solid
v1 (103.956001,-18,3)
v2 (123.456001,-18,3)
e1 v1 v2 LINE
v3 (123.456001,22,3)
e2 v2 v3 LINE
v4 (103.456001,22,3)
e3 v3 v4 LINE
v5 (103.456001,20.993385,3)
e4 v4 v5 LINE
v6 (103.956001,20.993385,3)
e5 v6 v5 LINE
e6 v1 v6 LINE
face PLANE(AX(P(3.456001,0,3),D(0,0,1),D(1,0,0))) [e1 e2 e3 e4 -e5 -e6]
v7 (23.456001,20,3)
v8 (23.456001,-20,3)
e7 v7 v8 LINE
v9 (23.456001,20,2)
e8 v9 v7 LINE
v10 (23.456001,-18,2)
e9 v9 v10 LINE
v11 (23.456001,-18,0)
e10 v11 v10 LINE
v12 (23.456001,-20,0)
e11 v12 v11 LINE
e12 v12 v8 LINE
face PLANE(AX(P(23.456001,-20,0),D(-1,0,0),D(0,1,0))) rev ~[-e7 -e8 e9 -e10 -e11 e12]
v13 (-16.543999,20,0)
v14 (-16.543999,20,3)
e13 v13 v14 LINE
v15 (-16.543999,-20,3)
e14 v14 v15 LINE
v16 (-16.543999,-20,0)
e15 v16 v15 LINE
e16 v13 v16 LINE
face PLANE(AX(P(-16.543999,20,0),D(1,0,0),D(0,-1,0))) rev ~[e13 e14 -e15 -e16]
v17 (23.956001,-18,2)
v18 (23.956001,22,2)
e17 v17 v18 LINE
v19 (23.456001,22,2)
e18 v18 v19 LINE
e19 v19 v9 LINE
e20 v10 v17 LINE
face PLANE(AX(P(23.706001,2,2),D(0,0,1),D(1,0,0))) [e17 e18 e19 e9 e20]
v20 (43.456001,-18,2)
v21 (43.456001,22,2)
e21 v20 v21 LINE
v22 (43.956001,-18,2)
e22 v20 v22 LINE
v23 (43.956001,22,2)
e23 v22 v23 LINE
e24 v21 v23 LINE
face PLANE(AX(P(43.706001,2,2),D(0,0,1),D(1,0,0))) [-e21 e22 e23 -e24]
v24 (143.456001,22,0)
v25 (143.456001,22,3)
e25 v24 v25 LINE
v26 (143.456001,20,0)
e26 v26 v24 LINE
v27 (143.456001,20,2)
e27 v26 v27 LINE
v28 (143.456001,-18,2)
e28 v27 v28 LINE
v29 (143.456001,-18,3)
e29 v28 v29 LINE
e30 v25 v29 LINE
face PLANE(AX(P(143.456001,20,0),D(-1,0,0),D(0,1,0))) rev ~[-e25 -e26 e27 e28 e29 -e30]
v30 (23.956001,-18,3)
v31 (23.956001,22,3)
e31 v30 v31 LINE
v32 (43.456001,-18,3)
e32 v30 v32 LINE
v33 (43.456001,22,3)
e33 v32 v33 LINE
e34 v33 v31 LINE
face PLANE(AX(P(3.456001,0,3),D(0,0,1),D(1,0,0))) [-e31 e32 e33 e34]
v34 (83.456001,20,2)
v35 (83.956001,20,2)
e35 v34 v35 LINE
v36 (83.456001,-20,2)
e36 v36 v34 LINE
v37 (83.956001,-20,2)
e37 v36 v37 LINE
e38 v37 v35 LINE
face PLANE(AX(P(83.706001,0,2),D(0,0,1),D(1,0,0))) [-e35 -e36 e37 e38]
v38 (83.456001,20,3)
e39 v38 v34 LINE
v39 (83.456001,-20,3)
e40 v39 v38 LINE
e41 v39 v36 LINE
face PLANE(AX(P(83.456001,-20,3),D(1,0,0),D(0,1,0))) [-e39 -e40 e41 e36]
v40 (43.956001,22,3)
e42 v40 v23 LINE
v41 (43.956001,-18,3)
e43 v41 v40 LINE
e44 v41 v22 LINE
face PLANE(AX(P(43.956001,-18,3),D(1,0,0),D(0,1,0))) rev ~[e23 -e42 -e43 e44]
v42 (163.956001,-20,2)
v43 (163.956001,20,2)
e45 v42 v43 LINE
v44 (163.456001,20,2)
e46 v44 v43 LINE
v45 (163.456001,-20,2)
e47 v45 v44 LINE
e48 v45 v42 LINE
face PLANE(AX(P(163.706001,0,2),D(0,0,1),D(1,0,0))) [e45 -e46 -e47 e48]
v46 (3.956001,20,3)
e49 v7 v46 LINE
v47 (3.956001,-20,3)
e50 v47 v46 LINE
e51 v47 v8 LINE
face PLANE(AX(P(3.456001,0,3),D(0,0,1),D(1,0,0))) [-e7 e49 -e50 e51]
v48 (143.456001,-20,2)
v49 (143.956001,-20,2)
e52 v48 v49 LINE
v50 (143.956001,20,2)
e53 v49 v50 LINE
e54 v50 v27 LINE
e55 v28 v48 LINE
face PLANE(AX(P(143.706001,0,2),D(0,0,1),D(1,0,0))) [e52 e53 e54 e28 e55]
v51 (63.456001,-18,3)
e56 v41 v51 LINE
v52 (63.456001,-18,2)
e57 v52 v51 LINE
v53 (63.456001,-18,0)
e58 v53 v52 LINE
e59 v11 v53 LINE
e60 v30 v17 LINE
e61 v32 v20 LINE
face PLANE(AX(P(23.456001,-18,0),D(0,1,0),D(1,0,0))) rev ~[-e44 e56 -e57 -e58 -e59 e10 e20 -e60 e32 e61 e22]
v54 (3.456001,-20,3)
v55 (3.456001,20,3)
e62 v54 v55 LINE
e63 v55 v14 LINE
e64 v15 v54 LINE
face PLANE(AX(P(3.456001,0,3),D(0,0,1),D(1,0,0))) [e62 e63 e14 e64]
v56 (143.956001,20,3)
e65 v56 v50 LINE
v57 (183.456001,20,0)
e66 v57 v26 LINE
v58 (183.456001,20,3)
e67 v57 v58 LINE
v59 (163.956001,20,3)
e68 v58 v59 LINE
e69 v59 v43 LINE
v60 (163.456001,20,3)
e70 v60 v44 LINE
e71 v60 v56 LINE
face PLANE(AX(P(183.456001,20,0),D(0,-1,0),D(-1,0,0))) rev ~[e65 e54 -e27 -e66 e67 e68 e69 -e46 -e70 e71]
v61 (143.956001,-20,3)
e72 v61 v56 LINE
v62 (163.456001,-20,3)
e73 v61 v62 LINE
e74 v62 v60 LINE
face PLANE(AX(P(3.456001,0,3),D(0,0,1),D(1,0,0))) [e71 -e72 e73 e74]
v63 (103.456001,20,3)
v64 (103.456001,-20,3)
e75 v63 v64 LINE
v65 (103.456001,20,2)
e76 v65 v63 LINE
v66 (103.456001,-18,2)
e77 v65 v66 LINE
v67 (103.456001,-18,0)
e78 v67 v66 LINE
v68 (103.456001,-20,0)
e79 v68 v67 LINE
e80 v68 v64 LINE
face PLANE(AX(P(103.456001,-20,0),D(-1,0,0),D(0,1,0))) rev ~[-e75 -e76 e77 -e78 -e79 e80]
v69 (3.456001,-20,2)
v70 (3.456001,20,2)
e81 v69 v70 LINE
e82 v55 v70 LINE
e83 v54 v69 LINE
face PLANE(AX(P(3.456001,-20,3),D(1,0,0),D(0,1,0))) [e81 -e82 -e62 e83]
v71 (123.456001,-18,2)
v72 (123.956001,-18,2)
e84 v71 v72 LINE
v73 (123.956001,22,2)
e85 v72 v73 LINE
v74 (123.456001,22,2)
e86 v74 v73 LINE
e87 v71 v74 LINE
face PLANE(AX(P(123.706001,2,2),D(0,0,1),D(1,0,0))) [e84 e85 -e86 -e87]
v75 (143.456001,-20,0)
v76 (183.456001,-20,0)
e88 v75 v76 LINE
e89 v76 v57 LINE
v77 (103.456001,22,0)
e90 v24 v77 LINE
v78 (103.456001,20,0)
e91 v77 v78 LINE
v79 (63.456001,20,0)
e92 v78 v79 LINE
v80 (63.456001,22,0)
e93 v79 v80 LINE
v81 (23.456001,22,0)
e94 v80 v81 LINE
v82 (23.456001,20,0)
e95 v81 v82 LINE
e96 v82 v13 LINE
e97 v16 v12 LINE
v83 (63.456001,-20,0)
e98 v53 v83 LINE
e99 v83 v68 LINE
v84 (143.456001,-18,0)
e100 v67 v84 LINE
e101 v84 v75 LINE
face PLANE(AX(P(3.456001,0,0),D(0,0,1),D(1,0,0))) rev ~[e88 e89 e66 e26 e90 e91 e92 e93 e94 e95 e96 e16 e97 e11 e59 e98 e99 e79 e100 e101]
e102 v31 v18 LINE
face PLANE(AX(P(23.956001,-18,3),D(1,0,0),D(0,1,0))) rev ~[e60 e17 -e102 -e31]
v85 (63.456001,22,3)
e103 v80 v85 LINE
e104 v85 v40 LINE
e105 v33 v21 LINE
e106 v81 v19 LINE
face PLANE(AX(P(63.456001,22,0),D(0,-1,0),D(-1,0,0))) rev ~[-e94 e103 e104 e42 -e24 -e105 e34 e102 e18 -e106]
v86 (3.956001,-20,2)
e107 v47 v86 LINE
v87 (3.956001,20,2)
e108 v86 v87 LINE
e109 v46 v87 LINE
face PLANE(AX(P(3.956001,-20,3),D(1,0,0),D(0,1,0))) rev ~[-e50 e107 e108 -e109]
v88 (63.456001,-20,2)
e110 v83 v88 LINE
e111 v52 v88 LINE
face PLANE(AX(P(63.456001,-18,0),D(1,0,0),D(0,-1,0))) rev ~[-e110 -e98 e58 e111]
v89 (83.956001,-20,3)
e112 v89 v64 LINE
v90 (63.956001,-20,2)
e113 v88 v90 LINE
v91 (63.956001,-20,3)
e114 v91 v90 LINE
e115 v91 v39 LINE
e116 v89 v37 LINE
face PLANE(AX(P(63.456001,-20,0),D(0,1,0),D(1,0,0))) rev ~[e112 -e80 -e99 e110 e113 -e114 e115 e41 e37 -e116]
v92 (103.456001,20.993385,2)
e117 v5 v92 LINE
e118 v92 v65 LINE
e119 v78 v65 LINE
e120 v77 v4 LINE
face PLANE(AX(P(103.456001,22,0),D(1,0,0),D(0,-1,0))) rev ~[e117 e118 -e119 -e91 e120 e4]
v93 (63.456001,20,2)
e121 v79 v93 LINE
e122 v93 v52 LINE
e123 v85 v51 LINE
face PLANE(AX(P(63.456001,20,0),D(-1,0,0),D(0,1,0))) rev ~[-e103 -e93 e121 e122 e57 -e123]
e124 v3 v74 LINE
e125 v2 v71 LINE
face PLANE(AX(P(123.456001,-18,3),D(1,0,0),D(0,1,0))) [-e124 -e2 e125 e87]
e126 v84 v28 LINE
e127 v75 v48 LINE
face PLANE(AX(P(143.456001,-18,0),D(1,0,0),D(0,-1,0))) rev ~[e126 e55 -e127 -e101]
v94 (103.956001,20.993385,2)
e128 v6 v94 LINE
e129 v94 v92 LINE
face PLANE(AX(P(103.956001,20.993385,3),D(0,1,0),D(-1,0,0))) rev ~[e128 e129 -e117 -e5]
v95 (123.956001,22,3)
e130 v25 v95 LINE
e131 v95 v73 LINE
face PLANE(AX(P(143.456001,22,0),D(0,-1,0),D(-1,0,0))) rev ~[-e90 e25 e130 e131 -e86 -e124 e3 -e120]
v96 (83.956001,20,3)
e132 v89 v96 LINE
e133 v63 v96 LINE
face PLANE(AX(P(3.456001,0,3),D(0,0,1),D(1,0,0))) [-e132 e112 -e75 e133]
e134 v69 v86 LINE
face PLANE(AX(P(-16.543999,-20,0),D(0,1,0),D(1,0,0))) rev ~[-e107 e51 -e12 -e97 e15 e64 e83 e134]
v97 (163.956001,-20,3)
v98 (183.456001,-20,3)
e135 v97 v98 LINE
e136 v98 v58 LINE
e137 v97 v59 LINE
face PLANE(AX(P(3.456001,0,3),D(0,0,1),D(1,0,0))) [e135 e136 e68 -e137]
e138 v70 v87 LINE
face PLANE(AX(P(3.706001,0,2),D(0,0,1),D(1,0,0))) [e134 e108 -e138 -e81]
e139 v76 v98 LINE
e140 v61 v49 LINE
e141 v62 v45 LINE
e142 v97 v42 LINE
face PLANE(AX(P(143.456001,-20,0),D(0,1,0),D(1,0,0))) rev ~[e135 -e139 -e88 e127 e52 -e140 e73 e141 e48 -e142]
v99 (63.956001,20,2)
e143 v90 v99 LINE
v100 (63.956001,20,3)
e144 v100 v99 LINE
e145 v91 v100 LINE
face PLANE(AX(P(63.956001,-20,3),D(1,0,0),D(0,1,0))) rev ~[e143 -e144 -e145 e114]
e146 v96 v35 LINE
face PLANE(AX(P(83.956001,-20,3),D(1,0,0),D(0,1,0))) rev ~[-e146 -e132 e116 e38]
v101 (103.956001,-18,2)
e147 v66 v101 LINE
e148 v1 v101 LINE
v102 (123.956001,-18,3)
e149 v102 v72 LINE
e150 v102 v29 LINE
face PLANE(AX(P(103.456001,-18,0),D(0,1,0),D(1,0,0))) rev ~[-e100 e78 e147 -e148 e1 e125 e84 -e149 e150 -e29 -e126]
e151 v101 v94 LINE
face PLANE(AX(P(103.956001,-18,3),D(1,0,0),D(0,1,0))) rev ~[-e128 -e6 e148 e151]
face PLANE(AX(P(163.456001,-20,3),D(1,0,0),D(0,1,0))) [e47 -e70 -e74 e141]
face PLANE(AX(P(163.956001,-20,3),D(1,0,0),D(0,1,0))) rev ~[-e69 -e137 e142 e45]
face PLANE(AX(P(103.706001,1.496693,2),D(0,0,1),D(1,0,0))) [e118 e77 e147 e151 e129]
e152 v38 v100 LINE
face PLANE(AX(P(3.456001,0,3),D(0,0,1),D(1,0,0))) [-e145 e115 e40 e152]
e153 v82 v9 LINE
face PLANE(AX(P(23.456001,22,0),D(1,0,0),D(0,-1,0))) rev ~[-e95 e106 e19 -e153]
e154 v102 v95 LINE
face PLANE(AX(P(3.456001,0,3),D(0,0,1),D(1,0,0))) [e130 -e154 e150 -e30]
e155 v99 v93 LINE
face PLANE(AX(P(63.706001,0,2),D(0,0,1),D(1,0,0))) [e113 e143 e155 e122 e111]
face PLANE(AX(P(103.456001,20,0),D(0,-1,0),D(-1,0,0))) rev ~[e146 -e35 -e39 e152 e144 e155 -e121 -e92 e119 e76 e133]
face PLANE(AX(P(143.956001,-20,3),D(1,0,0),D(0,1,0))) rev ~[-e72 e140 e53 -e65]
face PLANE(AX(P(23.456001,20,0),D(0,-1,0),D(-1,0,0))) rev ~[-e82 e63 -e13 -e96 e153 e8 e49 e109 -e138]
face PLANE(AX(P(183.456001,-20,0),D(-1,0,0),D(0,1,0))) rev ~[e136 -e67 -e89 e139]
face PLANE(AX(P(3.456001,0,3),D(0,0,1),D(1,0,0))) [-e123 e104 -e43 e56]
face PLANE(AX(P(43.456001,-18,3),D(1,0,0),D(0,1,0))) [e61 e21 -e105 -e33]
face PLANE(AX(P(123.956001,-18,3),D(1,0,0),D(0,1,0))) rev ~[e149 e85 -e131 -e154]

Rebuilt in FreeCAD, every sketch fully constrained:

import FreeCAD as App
import Part
import Sketcher
from FreeCAD import Vector
Q = App.Units.Quantity


def add_polygon(sketch, points):
    """Adds a closed chain of lines whose ends are joined by coincident constraints."""
    first, n = sketch.GeometryCount, len(points)
    for a, b in zip(points, points[1:] + points[:1]):
        sketch.addGeometry(Part.LineSegment(App.Vector(*a, 0), App.Vector(*b, 0)), False)
    for i in range(n):
        sketch.addConstraint(Sketcher.Constraint("Coincident", first + i, 2, first + (i + 1) % n, 1))

doc = App.newDocument("Part")
body = doc.addObject("PartDesign::Body", "Body")

sketch1 = doc.addObject("Sketcher::SketchObject", "Sketch")
body.addObject(sketch1)
sketch1.AttachmentSupport = (doc.XY_Plane, [""])
sketch1.MapMode = "FlatFace"
add_polygon(sketch1, [(-16.543999, -20), (23.456001, -20), (23.456001, -18), (63.456001, -18), (63.456001, -20), (103.456001, -20), (103.456001, -18), (143.456001, -18), (143.456001, -20), (183.456001, -20), (183.456001, 20), (143.456001, 20), (143.456001, 22), (103.456001, 22), (103.456001, 20), (63.456001, 20), (63.456001, 22), (23.456001, 22), (23.456001, 20), (-16.543999, 20)])
sketch1.addConstraint(Sketcher.Constraint("Horizontal", 0))
sketch1.addConstraint(Sketcher.Constraint("Vertical", 1))
sketch1.addConstraint(Sketcher.Constraint("Horizontal", 2))
sketch1.addConstraint(Sketcher.Constraint("Vertical", 3))
sketch1.addConstraint(Sketcher.Constraint("Horizontal", 4))
sketch1.addConstraint(Sketcher.Constraint("Vertical", 5))
sketch1.addConstraint(Sketcher.Constraint("Horizontal", 6))
sketch1.addConstraint(Sketcher.Constraint("Vertical", 7))
sketch1.addConstraint(Sketcher.Constraint("Horizontal", 8))
sketch1.addConstraint(Sketcher.Constraint("Vertical", 9))
sketch1.addConstraint(Sketcher.Constraint("Horizontal", 10))
sketch1.addConstraint(Sketcher.Constraint("Vertical", 11))
sketch1.addConstraint(Sketcher.Constraint("Horizontal", 12))
sketch1.addConstraint(Sketcher.Constraint("Vertical", 13))
sketch1.addConstraint(Sketcher.Constraint("Horizontal", 14))
sketch1.addConstraint(Sketcher.Constraint("Vertical", 15))
sketch1.addConstraint(Sketcher.Constraint("Horizontal", 16))
sketch1.addConstraint(Sketcher.Constraint("Vertical", 17))
sketch1.addConstraint(Sketcher.Constraint("Horizontal", 18))
sketch1.addConstraint(Sketcher.Constraint("Vertical", 19))
sketch1.addConstraint(Sketcher.Constraint("Symmetric", 7, 2, 10, 2, -1))
sketch1.addConstraint(Sketcher.Constraint("Symmetric", 4, 2, 13, 2, -1))
sketch1.addConstraint(Sketcher.Constraint("Symmetric", 0, 2, 17, 2, -1))
sketch1.addConstraint(Sketcher.Constraint("Horizontal", 0, 2, 3, 2))
sketch1.addConstraint(Sketcher.Constraint("Horizontal", 2, 2, 5, 2))
sketch1.addConstraint(Sketcher.Constraint("Horizontal", 4, 2, 7, 2))
sketch1.addConstraint(Sketcher.Constraint("Horizontal", 12, 2, 15, 2))
sketch1.addConstraint(Sketcher.Constraint("Vertical", 3, 2, 14, 2))
sketch1.addConstraint(Sketcher.Constraint("Equal", 0, 2))
sketch1.addConstraint(Sketcher.Constraint("Equal", 2, 4))
sketch1.addConstraint(Sketcher.Constraint("Equal", 4, 6))
sketch1.addConstraint(Sketcher.Constraint("Equal", 6, 8))
sketch1.addConstraint(Sketcher.Constraint("Equal", 18, 9))
sketch1.addConstraint(Sketcher.Constraint("Equal", 7, 11))
sketch1.addConstraint(Sketcher.Constraint("DistanceX", 0, 1, 0, 2, Q("40 mm")))
sketch1.addConstraint(Sketcher.Constraint("DistanceY", 1, 1, 1, 2, Q("2 mm")))
sketch1.addConstraint(Sketcher.Constraint("DistanceX", -1, 1, 0, 2, Q("23.456001 mm")))
pad1 = doc.addObject("PartDesign::Pad", "Pad")
body.addObject(pad1)
pad1.Profile = sketch1
pad1.Length = 3

sketch2 = doc.addObject("Sketcher::SketchObject", "Sketch001")
body.addObject(sketch2)
sketch2.AttachmentSupport = (doc.XY_Plane, [""])
sketch2.MapMode = "FlatFace"
sketch2.AttachmentOffset = App.Placement(Vector(0, 0, 3), App.Rotation())
add_polygon(sketch2, [(3.456001, 20), (3.456001, -20), (3.956001, -20), (3.956001, 20)])
add_polygon(sketch2, [(23.456001, 22), (23.456001, -18), (23.956001, -18), (23.956001, 22)])
add_polygon(sketch2, [(43.456001, 22), (43.456001, -18), (43.956001, -18), (43.956001, 22)])
add_polygon(sketch2, [(63.456001, 20), (63.456001, -20), (63.956001, -20), (63.956001, 20)])
add_polygon(sketch2, [(83.456001, 20), (83.456001, -20), (83.956001, -20), (83.956001, 20)])
add_polygon(sketch2, [(103.456001, 20.993385), (103.456001, -18), (103.956001, -18), (103.956001, 20.993385)])
add_polygon(sketch2, [(123.456001, 22), (123.456001, -18), (123.956001, -18), (123.956001, 22)])
add_polygon(sketch2, [(143.456001, 20), (143.456001, -20), (143.956001, -20), (143.956001, 20)])
add_polygon(sketch2, [(163.456001, 20), (163.456001, -20), (163.956001, -20), (163.956001, 20)])
sketch2.addConstraint(Sketcher.Constraint("Vertical", 0))
sketch2.addConstraint(Sketcher.Constraint("Horizontal", 1))
sketch2.addConstraint(Sketcher.Constraint("Vertical", 2))
sketch2.addConstraint(Sketcher.Constraint("Horizontal", 3))
sketch2.addConstraint(Sketcher.Constraint("Vertical", 4))
sketch2.addConstraint(Sketcher.Constraint("Horizontal", 5))
sketch2.addConstraint(Sketcher.Constraint("Vertical", 6))
sketch2.addConstraint(Sketcher.Constraint("Horizontal", 7))
sketch2.addConstraint(Sketcher.Constraint("Vertical", 8))
sketch2.addConstraint(Sketcher.Constraint("Horizontal", 9))
sketch2.addConstraint(Sketcher.Constraint("Vertical", 10))
sketch2.addConstraint(Sketcher.Constraint("Horizontal", 11))
sketch2.addConstraint(Sketcher.Constraint("Vertical", 12))
sketch2.addConstraint(Sketcher.Constraint("Horizontal", 13))
sketch2.addConstraint(Sketcher.Constraint("Vertical", 14))
sketch2.addConstraint(Sketcher.Constraint("Horizontal", 15))
sketch2.addConstraint(Sketcher.Constraint("Vertical", 16))
sketch2.addConstraint(Sketcher.Constraint("Horizontal", 17))
sketch2.addConstraint(Sketcher.Constraint("Vertical", 18))
sketch2.addConstraint(Sketcher.Constraint("Horizontal", 19))
sketch2.addConstraint(Sketcher.Constraint("Vertical", 20))
sketch2.addConstraint(Sketcher.Constraint("Horizontal", 21))
sketch2.addConstraint(Sketcher.Constraint("Vertical", 22))
sketch2.addConstraint(Sketcher.Constraint("Horizontal", 23))
sketch2.addConstraint(Sketcher.Constraint("Vertical", 24))
sketch2.addConstraint(Sketcher.Constraint("Horizontal", 25))
sketch2.addConstraint(Sketcher.Constraint("Vertical", 26))
sketch2.addConstraint(Sketcher.Constraint("Horizontal", 27))
sketch2.addConstraint(Sketcher.Constraint("Vertical", 28))
sketch2.addConstraint(Sketcher.Constraint("Horizontal", 29))
sketch2.addConstraint(Sketcher.Constraint("Vertical", 30))
sketch2.addConstraint(Sketcher.Constraint("Horizontal", 31))
sketch2.addConstraint(Sketcher.Constraint("Vertical", 32))
sketch2.addConstraint(Sketcher.Constraint("Horizontal", 33))
sketch2.addConstraint(Sketcher.Constraint("Vertical", 34))
sketch2.addConstraint(Sketcher.Constraint("Horizontal", 35))
sketch2.addConstraint(Sketcher.Constraint("Horizontal", 5, 2, 8, 2))
sketch2.addConstraint(Sketcher.Constraint("Horizontal", 7, 2, 10, 2))
sketch2.addConstraint(Sketcher.Constraint("Horizontal", 1, 2, 12, 2))
sketch2.addConstraint(Sketcher.Constraint("Horizontal", 3, 2, 14, 2))
sketch2.addConstraint(Sketcher.Constraint("Horizontal", 13, 2, 16, 2))
sketch2.addConstraint(Sketcher.Constraint("Horizontal", 15, 2, 18, 2))
sketch2.addConstraint(Sketcher.Constraint("Horizontal", 9, 2, 20, 2))
sketch2.addConstraint(Sketcher.Constraint("Horizontal", 21, 2, 24, 2))
sketch2.addConstraint(Sketcher.Constraint("Horizontal", 11, 2, 26, 2))
sketch2.addConstraint(Sketcher.Constraint("Horizontal", 17, 2, 28, 2))
sketch2.addConstraint(Sketcher.Constraint("Horizontal", 19, 2, 30, 2))
sketch2.addConstraint(Sketcher.Constraint("Horizontal", 29, 2, 32, 2))
sketch2.addConstraint(Sketcher.Constraint("Horizontal", 31, 2, 34, 2))
sketch2.addConstraint(Sketcher.Constraint("Equal", 3, 5))
sketch2.addConstraint(Sketcher.Constraint("Equal", 7, 9))
sketch2.addConstraint(Sketcher.Constraint("Equal", 11, 13))
sketch2.addConstraint(Sketcher.Constraint("Equal", 15, 17))
sketch2.addConstraint(Sketcher.Constraint("Equal", 19, 21))
sketch2.addConstraint(Sketcher.Constraint("Equal", 23, 25))
sketch2.addConstraint(Sketcher.Constraint("Equal", 27, 29))
sketch2.addConstraint(Sketcher.Constraint("Equal", 31, 33))
sketch2.addConstraint(Sketcher.Constraint("Equal", 2, 4))
sketch2.addConstraint(Sketcher.Constraint("DistanceY", 0, 2, 0, 1, Q("40 mm")))
sketch2.addConstraint(Sketcher.Constraint("DistanceX", 1, 1, 1, 2, Q("0.5 mm")))
sketch2.addConstraint(Sketcher.Constraint("DistanceY", 0, 2, -1, 1, Q("20 mm")))
sketch2.addConstraint(Sketcher.Constraint("DistanceY", 4, 2, -1, 1, Q("18 mm")))
sketch2.addConstraint(Sketcher.Constraint("DistanceX", 0, 2, 4, 2, Q("20 mm")))
sketch2.addConstraint(Sketcher.Constraint("DistanceX", 4, 2, 8, 2, Q("20 mm")))
sketch2.addConstraint(Sketcher.Constraint("DistanceX", 8, 2, 12, 2, Q("20 mm")))
sketch2.addConstraint(Sketcher.Constraint("DistanceX", 12, 2, 16, 2, Q("20 mm")))
sketch2.addConstraint(Sketcher.Constraint("DistanceX", 16, 2, 20, 2, Q("20 mm")))
sketch2.addConstraint(Sketcher.Constraint("DistanceX", 20, 2, 24, 2, Q("20 mm")))
sketch2.addConstraint(Sketcher.Constraint("DistanceX", 24, 2, 28, 2, Q("20 mm")))
sketch2.addConstraint(Sketcher.Constraint("DistanceX", 28, 2, 32, 2, Q("20 mm")))
sketch2.addConstraint(Sketcher.Constraint("DistanceX", -1, 1, 0, 2, Q("3.456001 mm")))
sketch2.addConstraint(Sketcher.Constraint("DistanceY", 20, 2, 20, 1, Q("38.993385 mm")))
pocket1 = doc.addObject("PartDesign::Pocket", "Pocket")
body.addObject(pocket1)
pocket1.Profile = sketch2
pocket1.Length = 1

doc.recompute()
